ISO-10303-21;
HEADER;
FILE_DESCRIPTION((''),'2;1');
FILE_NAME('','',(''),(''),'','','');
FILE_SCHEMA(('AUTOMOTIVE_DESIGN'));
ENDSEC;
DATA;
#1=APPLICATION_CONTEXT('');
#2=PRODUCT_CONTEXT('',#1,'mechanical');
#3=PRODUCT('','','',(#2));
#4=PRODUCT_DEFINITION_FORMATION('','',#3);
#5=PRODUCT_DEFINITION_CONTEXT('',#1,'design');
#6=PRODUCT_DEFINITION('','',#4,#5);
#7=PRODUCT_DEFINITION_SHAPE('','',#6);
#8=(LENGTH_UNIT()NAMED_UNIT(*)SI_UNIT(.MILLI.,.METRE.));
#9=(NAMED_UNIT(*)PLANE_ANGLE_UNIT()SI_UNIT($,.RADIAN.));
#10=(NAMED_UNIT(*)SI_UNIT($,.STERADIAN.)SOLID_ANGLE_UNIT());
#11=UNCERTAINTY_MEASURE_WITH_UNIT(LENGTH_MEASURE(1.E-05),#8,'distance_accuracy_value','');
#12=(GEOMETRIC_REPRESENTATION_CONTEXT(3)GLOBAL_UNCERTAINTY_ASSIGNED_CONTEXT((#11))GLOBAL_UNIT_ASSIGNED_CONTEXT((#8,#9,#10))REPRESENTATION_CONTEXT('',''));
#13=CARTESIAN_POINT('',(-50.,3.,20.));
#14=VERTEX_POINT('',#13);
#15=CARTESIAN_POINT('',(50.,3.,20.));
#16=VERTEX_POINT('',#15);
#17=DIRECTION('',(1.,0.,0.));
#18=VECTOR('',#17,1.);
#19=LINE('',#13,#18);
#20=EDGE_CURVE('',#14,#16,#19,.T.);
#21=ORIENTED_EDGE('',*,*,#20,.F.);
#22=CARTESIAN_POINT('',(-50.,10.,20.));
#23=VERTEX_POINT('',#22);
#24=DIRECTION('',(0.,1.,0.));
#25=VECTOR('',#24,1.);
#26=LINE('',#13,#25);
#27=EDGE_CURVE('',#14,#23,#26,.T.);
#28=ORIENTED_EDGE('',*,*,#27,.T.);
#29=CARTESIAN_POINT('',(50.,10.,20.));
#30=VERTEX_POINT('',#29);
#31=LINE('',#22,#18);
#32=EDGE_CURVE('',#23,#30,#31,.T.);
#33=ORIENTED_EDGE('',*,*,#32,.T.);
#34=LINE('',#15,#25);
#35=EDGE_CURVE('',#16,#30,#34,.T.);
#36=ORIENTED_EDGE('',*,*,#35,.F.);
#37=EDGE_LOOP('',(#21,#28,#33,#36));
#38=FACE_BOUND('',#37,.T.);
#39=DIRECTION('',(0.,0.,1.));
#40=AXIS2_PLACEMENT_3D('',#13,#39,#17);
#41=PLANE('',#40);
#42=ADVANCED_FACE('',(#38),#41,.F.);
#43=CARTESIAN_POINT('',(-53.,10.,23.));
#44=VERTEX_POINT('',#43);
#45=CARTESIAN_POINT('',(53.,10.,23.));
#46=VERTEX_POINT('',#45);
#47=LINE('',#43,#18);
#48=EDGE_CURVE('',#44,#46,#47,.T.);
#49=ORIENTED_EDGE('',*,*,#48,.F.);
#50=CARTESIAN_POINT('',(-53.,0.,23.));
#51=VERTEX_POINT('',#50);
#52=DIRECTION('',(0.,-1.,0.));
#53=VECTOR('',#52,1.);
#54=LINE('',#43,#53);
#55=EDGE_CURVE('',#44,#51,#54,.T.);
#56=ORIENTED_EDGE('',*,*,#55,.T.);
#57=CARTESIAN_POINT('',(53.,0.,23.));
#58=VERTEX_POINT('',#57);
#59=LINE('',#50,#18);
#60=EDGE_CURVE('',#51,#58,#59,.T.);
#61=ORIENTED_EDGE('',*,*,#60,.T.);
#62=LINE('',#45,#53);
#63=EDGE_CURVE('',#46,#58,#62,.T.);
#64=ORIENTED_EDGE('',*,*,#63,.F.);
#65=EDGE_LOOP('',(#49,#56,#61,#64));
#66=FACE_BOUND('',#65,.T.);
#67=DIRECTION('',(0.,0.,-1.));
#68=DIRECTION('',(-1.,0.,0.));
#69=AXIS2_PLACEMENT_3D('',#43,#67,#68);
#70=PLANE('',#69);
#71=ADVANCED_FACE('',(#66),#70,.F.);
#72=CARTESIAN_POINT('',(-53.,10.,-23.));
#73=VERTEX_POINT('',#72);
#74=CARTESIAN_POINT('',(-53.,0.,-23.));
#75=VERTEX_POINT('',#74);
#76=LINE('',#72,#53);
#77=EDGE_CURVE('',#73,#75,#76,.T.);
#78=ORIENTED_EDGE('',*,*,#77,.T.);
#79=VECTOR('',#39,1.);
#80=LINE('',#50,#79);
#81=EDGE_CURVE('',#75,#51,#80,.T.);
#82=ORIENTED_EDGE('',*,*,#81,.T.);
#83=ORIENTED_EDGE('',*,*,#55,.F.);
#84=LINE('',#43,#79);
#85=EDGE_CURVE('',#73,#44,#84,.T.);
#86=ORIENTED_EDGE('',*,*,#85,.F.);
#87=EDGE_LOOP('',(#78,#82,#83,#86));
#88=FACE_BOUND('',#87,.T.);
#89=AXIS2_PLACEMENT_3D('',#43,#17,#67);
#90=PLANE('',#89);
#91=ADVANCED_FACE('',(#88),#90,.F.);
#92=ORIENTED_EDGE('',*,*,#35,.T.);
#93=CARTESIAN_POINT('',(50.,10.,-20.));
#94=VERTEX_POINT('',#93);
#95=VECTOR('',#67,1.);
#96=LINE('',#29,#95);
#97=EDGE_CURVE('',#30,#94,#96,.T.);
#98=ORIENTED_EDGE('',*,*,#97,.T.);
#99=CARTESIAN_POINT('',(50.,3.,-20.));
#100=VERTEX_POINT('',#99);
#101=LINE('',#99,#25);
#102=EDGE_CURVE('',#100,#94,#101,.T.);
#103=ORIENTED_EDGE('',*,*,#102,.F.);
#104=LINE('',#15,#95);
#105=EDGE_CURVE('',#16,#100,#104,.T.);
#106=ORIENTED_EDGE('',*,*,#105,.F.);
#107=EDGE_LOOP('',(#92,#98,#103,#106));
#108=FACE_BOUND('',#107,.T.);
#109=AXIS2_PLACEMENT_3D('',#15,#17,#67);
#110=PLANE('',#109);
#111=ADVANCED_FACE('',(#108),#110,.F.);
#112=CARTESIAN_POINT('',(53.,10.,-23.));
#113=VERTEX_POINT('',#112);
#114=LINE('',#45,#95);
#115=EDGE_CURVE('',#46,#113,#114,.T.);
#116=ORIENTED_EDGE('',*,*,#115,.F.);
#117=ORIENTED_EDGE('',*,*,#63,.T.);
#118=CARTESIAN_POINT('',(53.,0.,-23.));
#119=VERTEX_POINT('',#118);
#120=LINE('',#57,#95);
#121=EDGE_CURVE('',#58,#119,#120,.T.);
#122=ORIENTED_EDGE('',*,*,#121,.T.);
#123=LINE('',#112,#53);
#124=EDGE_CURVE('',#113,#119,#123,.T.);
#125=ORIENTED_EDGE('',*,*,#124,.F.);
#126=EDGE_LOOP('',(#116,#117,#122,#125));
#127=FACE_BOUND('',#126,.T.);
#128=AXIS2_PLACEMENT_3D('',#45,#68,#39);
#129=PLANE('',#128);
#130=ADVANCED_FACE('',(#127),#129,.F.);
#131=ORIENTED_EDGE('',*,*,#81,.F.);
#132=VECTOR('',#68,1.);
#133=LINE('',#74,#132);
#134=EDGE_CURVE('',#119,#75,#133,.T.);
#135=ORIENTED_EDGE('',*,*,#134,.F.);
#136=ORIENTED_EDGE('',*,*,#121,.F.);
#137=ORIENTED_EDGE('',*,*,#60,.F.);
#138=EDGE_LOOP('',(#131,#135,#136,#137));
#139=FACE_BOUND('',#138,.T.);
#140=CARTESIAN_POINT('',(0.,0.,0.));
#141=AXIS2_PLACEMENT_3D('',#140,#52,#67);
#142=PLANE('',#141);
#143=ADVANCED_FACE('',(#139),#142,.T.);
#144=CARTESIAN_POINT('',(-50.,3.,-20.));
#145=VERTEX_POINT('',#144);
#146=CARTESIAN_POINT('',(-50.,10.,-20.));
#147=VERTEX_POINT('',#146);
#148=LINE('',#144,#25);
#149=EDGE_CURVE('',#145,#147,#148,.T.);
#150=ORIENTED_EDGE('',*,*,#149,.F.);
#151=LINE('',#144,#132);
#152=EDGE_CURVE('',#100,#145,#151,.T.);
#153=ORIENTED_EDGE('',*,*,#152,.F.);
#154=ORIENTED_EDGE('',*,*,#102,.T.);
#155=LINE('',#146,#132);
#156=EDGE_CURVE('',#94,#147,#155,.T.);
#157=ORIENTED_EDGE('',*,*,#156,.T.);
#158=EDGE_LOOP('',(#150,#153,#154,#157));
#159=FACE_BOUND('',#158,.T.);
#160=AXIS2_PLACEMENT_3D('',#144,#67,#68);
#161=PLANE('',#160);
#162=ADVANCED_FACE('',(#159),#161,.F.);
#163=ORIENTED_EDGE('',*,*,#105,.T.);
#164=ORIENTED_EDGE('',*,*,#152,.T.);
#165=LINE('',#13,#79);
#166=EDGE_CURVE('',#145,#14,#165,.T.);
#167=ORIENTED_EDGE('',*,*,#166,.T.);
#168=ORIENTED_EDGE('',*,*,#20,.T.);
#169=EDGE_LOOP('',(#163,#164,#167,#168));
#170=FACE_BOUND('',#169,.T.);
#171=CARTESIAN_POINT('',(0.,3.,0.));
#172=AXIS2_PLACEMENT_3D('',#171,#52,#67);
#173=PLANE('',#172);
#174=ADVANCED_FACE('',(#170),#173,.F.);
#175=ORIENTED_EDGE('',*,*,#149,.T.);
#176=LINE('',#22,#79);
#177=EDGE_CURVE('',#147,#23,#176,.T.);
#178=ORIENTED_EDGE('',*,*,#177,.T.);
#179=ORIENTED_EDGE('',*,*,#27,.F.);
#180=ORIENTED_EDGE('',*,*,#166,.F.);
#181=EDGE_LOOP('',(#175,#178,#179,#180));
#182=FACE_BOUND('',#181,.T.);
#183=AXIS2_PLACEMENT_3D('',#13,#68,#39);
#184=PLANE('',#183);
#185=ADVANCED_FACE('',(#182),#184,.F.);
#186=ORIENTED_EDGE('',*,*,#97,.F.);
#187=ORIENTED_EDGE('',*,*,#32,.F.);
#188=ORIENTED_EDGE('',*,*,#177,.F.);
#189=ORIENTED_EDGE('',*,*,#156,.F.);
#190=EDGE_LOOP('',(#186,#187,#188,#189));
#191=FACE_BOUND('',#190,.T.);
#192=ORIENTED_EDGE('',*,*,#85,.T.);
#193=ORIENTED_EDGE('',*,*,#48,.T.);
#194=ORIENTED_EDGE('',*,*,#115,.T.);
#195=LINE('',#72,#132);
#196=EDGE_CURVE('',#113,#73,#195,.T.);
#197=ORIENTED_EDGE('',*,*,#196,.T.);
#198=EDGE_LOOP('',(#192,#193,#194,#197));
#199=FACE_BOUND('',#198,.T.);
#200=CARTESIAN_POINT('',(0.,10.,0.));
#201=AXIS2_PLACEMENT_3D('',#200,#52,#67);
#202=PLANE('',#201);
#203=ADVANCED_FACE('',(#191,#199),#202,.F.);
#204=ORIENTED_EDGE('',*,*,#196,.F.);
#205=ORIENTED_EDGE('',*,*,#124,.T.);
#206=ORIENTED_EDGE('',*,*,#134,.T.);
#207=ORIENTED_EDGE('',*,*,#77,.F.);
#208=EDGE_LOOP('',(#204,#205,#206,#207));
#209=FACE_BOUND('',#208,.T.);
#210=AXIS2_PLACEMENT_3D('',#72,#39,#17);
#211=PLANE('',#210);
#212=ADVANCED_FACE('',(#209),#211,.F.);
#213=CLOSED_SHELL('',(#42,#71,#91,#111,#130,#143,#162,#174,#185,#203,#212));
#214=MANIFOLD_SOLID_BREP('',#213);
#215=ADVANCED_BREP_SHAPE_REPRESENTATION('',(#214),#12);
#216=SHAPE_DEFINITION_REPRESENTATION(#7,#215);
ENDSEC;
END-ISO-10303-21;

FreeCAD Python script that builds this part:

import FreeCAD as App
import Part
import Sketcher

V = App.Vector
Q = App.Units.Quantity

doc = App.newDocument("Part")
params = doc.addObject("Spreadsheet::Sheet", "Params")
for row, (alias, value) in enumerate([
    ("sketch1_width", "106 mm"),
    ("sketch1_height", "46 mm"),
    ("pad1_length", "10 mm"),
    ("sketch2_width", "100 mm"),
    ("sketch2_height", "40 mm"),
    ("pocket1_length", "7 mm"),
], start=1):
    params.set(f"A{row}", alias)
    params.set(f"B{row}", "=" + value)
    params.setAlias(f"B{row}", alias)

body = doc.addObject("PartDesign::Body", "Body")

# Sketch on XZ plane
sketch1 = body.newObject("Sketcher::SketchObject", "Sketch")
sketch1.AttachmentSupport = (doc.getObject("XZ_Plane"), [""])
sketch1.MapMode = "FlatFace"
sketch1.addGeometry([
    Part.LineSegment(V(-53, -23, 0), V(-53, 23, 0)),
    Part.LineSegment(V(-53, 23, 0), V(53, 23, 0)),
    Part.LineSegment(V(53, 23, 0), V(53, -23, 0)),
    Part.LineSegment(V(53, -23, 0), V(-53, -23, 0)),
], False)
sketch1.addConstraint([
    Sketcher.Constraint("Coincident", 0, 2, 1, 1),
    Sketcher.Constraint("Coincident", 1, 2, 2, 1),
    Sketcher.Constraint("Coincident", 2, 2, 3, 1),
    Sketcher.Constraint("Coincident", 3, 2, 0, 1),
    Sketcher.Constraint("Vertical", 0),
    Sketcher.Constraint("Horizontal", 1),
    Sketcher.Constraint("Vertical", 2),
    Sketcher.Constraint("Horizontal", 3),
    Sketcher.Constraint("Symmetric", 0, 2, 2, 2, -1, 1),
    Sketcher.Constraint("DistanceX", 1, 1, 1, 2, Q("106 mm")),
    Sketcher.Constraint("DistanceY", 0, 1, 0, 2, Q("46 mm")),
])
sketch1.setExpression("Constraints[9]", "Params.sketch1_width")
sketch1.setExpression("Constraints[10]", "Params.sketch1_height")
pad1 = body.newObject("PartDesign::Pad", "Pad")
pad1.Profile = sketch1
pad1.setExpression("Length", "Params.pad1_length")
pad1.Reversed = True

# Sketch on XZ plane
sketch2 = body.newObject("Sketcher::SketchObject", "Sketch001")
sketch2.AttachmentSupport = (doc.getObject("XZ_Plane"), [""])
sketch2.MapMode = "FlatFace"
sketch2.AttachmentOffset = App.Placement(V(0, 0, -10), App.Rotation())
sketch2.addGeometry([
    Part.LineSegment(V(-50, -20, 0), V(-50, 20, 0)),
    Part.LineSegment(V(-50, 20, 0), V(50, 20, 0)),
    Part.LineSegment(V(50, 20, 0), V(50, -20, 0)),
    Part.LineSegment(V(50, -20, 0), V(-50, -20, 0)),
], False)
sketch2.addConstraint([
    Sketcher.Constraint("Coincident", 0, 2, 1, 1),
    Sketcher.Constraint("Coincident", 1, 2, 2, 1),
    Sketcher.Constraint("Coincident", 2, 2, 3, 1),
    Sketcher.Constraint("Coincident", 3, 2, 0, 1),
    Sketcher.Constraint("Vertical", 0),
    Sketcher.Constraint("Horizontal", 1),
    Sketcher.Constraint("Vertical", 2),
    Sketcher.Constraint("Horizontal", 3),
    Sketcher.Constraint("Symmetric", 0, 2, 2, 2, -1, 1),
    Sketcher.Constraint("DistanceX", 1, 1, 1, 2, Q("100 mm")),
    Sketcher.Constraint("DistanceY", 0, 1, 0, 2, Q("40 mm")),
])
sketch2.setExpression("Constraints[9]", "Params.sketch2_width")
sketch2.setExpression("Constraints[10]", "Params.sketch2_height")
pocket1 = body.newObject("PartDesign::Pocket", "Pocket")
pocket1.Profile = sketch2
pocket1.setExpression("Length", "Params.pocket1_length")
pocket1.Reversed = True

doc.recompute()
